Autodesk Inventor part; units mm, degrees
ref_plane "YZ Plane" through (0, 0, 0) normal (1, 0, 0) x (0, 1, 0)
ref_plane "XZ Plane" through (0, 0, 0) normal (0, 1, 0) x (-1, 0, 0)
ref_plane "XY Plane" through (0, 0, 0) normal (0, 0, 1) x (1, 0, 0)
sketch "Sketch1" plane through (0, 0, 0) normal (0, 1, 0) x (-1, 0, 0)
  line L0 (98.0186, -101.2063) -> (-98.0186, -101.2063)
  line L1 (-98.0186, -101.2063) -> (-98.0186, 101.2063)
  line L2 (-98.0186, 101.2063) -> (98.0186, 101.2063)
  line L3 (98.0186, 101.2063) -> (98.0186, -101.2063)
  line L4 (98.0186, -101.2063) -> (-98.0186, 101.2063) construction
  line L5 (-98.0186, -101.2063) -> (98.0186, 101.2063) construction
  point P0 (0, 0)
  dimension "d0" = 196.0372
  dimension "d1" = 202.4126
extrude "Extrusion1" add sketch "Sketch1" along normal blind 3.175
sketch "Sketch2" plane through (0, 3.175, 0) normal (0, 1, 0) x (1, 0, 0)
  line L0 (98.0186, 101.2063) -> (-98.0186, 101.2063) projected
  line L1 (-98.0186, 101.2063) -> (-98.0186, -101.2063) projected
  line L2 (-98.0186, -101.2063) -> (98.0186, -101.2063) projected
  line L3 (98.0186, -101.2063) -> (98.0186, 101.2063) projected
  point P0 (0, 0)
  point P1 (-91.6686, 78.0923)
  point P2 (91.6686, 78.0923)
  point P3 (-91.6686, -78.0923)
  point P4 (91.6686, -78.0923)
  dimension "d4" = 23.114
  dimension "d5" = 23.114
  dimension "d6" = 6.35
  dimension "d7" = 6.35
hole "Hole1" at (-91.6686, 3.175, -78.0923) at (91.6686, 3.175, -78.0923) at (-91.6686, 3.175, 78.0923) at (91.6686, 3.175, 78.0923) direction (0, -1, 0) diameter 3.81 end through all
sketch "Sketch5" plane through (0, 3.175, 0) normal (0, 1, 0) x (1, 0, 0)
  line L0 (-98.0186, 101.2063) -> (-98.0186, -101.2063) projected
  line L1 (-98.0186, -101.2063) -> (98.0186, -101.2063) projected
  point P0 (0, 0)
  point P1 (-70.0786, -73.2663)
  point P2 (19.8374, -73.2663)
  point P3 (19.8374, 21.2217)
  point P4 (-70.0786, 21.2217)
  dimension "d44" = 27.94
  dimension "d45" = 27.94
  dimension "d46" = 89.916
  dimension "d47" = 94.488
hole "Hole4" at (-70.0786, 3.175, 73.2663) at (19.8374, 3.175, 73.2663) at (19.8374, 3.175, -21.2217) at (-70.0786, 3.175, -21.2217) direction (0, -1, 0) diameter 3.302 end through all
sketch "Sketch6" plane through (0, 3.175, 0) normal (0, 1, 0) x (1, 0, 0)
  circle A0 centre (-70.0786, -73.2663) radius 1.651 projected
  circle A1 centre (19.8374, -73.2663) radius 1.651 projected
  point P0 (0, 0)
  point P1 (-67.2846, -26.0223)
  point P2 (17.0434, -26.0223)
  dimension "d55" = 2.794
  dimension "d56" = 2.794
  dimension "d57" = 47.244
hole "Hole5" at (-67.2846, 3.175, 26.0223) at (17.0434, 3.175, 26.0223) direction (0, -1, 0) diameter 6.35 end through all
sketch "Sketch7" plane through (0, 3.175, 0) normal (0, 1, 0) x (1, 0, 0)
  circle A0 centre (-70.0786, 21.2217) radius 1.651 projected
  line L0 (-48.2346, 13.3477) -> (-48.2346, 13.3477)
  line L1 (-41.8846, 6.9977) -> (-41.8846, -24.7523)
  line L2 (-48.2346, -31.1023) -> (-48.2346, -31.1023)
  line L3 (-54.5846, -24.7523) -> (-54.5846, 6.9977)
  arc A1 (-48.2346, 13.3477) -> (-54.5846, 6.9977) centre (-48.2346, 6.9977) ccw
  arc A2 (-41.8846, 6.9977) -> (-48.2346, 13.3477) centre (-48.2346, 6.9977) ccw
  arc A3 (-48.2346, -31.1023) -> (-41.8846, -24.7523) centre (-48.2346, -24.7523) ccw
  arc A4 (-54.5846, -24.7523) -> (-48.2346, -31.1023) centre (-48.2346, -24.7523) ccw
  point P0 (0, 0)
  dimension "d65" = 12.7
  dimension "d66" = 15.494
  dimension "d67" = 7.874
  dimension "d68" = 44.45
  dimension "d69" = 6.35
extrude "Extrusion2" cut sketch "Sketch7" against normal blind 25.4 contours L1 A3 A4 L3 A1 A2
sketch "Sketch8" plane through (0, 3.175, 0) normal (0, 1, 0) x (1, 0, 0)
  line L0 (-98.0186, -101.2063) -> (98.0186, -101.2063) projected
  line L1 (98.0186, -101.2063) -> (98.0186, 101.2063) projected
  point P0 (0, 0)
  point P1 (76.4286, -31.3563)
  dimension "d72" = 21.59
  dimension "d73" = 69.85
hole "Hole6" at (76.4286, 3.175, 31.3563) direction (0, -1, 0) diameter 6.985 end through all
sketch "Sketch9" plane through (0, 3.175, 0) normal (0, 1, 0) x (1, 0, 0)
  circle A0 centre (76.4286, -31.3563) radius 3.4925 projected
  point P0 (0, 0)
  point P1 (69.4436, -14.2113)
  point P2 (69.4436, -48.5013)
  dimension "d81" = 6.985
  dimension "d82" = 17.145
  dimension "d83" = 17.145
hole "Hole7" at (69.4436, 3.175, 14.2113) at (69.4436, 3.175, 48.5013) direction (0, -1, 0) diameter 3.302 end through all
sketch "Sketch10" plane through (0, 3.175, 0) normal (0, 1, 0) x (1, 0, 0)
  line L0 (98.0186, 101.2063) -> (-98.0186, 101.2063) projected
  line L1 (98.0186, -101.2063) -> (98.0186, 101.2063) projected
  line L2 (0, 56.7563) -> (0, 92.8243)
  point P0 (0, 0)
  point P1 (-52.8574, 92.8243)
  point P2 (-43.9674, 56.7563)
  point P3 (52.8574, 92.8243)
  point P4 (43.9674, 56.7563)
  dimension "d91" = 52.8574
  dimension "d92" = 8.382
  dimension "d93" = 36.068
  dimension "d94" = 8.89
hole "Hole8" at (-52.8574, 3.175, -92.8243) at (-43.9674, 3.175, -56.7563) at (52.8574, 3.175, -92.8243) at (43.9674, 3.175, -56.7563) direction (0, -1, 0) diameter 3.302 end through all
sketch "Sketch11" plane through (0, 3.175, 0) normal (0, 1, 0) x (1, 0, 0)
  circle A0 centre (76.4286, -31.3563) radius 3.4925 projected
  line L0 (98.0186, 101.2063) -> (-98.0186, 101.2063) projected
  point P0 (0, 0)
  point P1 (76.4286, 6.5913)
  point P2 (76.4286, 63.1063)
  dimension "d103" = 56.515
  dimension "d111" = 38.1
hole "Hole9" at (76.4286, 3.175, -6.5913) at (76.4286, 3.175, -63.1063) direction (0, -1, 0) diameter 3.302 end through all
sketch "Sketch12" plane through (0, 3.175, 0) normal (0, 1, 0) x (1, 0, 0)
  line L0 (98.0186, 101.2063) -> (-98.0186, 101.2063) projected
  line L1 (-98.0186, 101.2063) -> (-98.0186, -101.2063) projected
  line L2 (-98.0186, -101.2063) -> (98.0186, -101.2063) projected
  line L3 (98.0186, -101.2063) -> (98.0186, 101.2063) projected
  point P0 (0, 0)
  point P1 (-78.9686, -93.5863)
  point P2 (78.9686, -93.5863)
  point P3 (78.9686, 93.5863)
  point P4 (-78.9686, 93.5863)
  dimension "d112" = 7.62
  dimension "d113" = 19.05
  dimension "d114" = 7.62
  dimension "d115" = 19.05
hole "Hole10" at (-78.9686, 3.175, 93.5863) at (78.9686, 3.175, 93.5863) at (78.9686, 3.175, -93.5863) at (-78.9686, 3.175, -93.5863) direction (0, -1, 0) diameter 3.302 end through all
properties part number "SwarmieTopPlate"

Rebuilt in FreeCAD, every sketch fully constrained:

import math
import FreeCAD as App
import Part
import Sketcher
from FreeCAD import Vector
Q = App.Units.Quantity


def add_polygon(sketch, points):
    """Adds a closed chain of lines whose ends are joined by coincident constraints."""
    first, n = sketch.GeometryCount, len(points)
    for a, b in zip(points, points[1:] + points[:1]):
        sketch.addGeometry(Part.LineSegment(App.Vector(*a, 0), App.Vector(*b, 0)), False)
    for i in range(n):
        sketch.addConstraint(Sketcher.Constraint("Coincident", first + i, 2, first + (i + 1) % n, 1))

doc = App.newDocument("Part")
body = doc.addObject("PartDesign::Body", "Body")

# Sketch on XZ plane
sketch1 = body.newObject("Sketcher::SketchObject", "Sketch")
sketch1.AttachmentSupport = (doc.getObject("XZ_Plane"), [""])
sketch1.MapMode = "FlatFace"
add_polygon(sketch1, [(98.0186, -101.2063), (-98.0186, -101.2063), (-98.0186, 101.2063), (98.0186, 101.2063)])  # lines 0-3
sketch1.addConstraint([
    Sketcher.Constraint("Horizontal", 0),
    Sketcher.Constraint("Vertical", 1),
    Sketcher.Constraint("Horizontal", 2),
    Sketcher.Constraint("Vertical", 3),
    Sketcher.Constraint("Symmetric", 0, 2, 2, 2, -1, 1),
    Sketcher.Constraint("DistanceX", 0, 2, 0, 1, Q("7.718 in")),
    Sketcher.Constraint("DistanceY", 1, 1, 1, 2, Q("7.969 in")),
])
pad1 = body.newObject("PartDesign::Pad", "Pad")
pad1.Profile = sketch1
pad1.Length = Q("0.125 in")
pad1.Reversed = True

# Sketch on XZ plane
sketch2 = body.newObject("Sketcher::SketchObject", "Sketch001")
sketch2.AttachmentSupport = (doc.getObject("XZ_Plane"), [""])
sketch2.MapMode = "FlatFace"
sketch2.AttachmentOffset = App.Placement(Vector(0, 0, -0.125 * 25.4), App.Rotation())
sketch2.addGeometry([
    Part.Circle(Vector(-91.6686, -78.0923, 0), Vector(0, 0, 1), 1.905),
    Part.Circle(Vector(91.6686, -78.0923, 0), Vector(0, 0, 1), 1.905),
    Part.Circle(Vector(-91.6686, 78.0923, 0), Vector(0, 0, 1), 1.905),
    Part.Circle(Vector(91.6686, 78.0923, 0), Vector(0, 0, 1), 1.905),
], False)
sketch2.addConstraint([
    Sketcher.Constraint("Equal", 0, 1),
    Sketcher.Constraint("Equal", 1, 2),
    Sketcher.Constraint("Equal", 2, 3),
    Sketcher.Constraint("Symmetric", 1, 3, 2, 3, -1, 1),
    Sketcher.Constraint("Symmetric", 0, 3, 3, 3, -1, 1),
    Sketcher.Constraint("Symmetric", 0, 3, 1, 3, -2),
    Sketcher.Constraint("Diameter", 0, Q("0.15 in")),
    Sketcher.Constraint("DistanceX", 0, 3, -1, 1, Q("3.609 in")),
    Sketcher.Constraint("DistanceY", 0, 3, 2, 3, Q("6.149 in")),
])
doc.recompute()
hole = body.newObject("PartDesign::Hole", "Hole")
hole.Profile = sketch2
hole.ThreadType = "None"
hole.Diameter = Q("0.15 in")
hole.DepthType = "ThroughAll"
hole.Reversed = True

# Sketch on XZ plane
sketch3 = body.newObject("Sketcher::SketchObject", "Sketch002")
sketch3.AttachmentSupport = (doc.getObject("XZ_Plane"), [""])
sketch3.MapMode = "FlatFace"
sketch3.AttachmentOffset = App.Placement(Vector(0, 0, -0.125 * 25.4), App.Rotation())
sketch3.addGeometry([
    Part.Circle(Vector(-70.0786, 73.2663, 0), Vector(0, 0, 1), 1.651),
    Part.Circle(Vector(19.8374, 73.2663, 0), Vector(0, 0, 1), 1.651),
    Part.Circle(Vector(19.8374, -21.2217, 0), Vector(0, 0, 1), 1.651),
    Part.Circle(Vector(-70.0786, -21.2217, 0), Vector(0, 0, 1), 1.651),
], False)
sketch3.addConstraint([
    Sketcher.Constraint("Equal", 0, 1),
    Sketcher.Constraint("Equal", 1, 2),
    Sketcher.Constraint("Equal", 2, 3),
    Sketcher.Constraint("Horizontal", 0, 3, 1, 3),
    Sketcher.Constraint("Horizontal", 2, 3, 3, 3),
    Sketcher.Constraint("Vertical", 1, 3, 2, 3),
    Sketcher.Constraint("Vertical", 0, 3, 3, 3),
    Sketcher.Constraint("Diameter", 0, Q("0.13 in")),
    Sketcher.Constraint("DistanceX", 0, 3, 1, 3, Q("3.54 in")),
    Sketcher.Constraint("DistanceY", 2, 3, 1, 3, Q("3.72 in")),
    Sketcher.Constraint("DistanceX", 0, 3, -1, 1, Q("2.759 in")),
    Sketcher.Constraint("DistanceY", -1, 1, 0, 3, Q("2.8845 in")),
])
doc.recompute()
hole2 = body.newObject("PartDesign::Hole", "Hole001")
hole2.Profile = sketch3
hole2.ThreadType = "None"
hole2.Diameter = Q("0.13 in")
hole2.DepthType = "ThroughAll"
hole2.Reversed = True

# Sketch on XZ plane
sketch4 = body.newObject("Sketcher::SketchObject", "Sketch003")
sketch4.AttachmentSupport = (doc.getObject("XZ_Plane"), [""])
sketch4.MapMode = "FlatFace"
sketch4.AttachmentOffset = App.Placement(Vector(0, 0, -0.125 * 25.4), App.Rotation())
sketch4.addGeometry([
    Part.Circle(Vector(-67.2846, 26.0223, 0), Vector(0, 0, 1), 3.175),
    Part.Circle(Vector(17.0434, 26.0223, 0), Vector(0, 0, 1), 3.175),
], False)
sketch4.addConstraint([
    Sketcher.Constraint("Equal", 0, 1),
    Sketcher.Constraint("Horizontal", 0, 3, 1, 3),
    Sketcher.Constraint("Diameter", 0, Q("0.25 in")),
    Sketcher.Constraint("DistanceX", 0, 3, 1, 3, Q("3.32 in")),
    Sketcher.Constraint("DistanceX", 0, 3, -1, 1, Q("2.649 in")),
    Sketcher.Constraint("DistanceY", -1, 1, 0, 3, Q("1.0245 in")),
])
doc.recompute()
hole3 = body.newObject("PartDesign::Hole", "Hole002")
hole3.Profile = sketch4
hole3.ThreadType = "None"
hole3.Diameter = Q("0.25 in")
hole3.DepthType = "ThroughAll"
hole3.Reversed = True

# Sketch on XZ plane
sketch5 = body.newObject("Sketcher::SketchObject", "Sketch004")
sketch5.AttachmentSupport = (doc.getObject("XZ_Plane"), [""])
sketch5.MapMode = "FlatFace"
sketch5.AttachmentOffset = App.Placement(Vector(0, 0, -0.125 * 25.4), App.Rotation())
sketch5.addGeometry([
    Part.LineSegment(Vector(-41.8846, 24.7523, 0), Vector(-41.8846, -6.9977, 0)),
    Part.ArcOfCircle(Part.Circle(Vector(-48.2346, -6.9977, 0), Vector(0, 0, 1), 6.35), math.radians(180), math.radians(360)),
    Part.LineSegment(Vector(-54.5846, -6.9977, 0), Vector(-54.5846, 24.7523, 0)),
    Part.ArcOfCircle(Part.Circle(Vector(-48.2346, 24.7523, 0), Vector(0, 0, 1), 6.35), math.radians(0), math.radians(180)),
], False)
sketch5.addConstraint([
    Sketcher.Constraint("Tangent", 0, 2, 1, 2),
    Sketcher.Constraint("Tangent", 1, 1, 2, 1),
    Sketcher.Constraint("Tangent", 2, 2, 3, 2),
    Sketcher.Constraint("Tangent", 3, 1, 0, 1),
    Sketcher.Constraint("Vertical", 0),
    Sketcher.Constraint("Vertical", 2),
    Sketcher.Constraint("Radius", 1, Q("0.25 in")),
    Sketcher.Constraint("DistanceY", 0, 2, 0, 1, Q("1.25 in")),
    Sketcher.Constraint("DistanceX", 1, 3, -1, 1, Q("1.899 in")),
    Sketcher.Constraint("DistanceY", 1, 3, -1, 1, Q("0.2755 in")),
])
pocket1 = body.newObject("PartDesign::Pocket", "Pocket")
pocket1.Profile = sketch5
pocket1.Length = Q("1 in")
pocket1.Reversed = True

# Sketch on XZ plane
sketch6 = body.newObject("Sketcher::SketchObject", "Sketch005")
sketch6.AttachmentSupport = (doc.getObject("XZ_Plane"), [""])
sketch6.MapMode = "FlatFace"
sketch6.AttachmentOffset = App.Placement(Vector(0, 0, -0.125 * 25.4), App.Rotation())
sketch6.addGeometry(Part.Circle(Vector(76.4286, 31.3563, 0), Vector(0, 0, 1), 3.4925), False)
sketch6.addConstraint([
    Sketcher.Constraint("Diameter", 0, Q("0.275 in")),
    Sketcher.Constraint("DistanceX", -1, 1, 0, 3, Q("3.009 in")),
    Sketcher.Constraint("DistanceY", -1, 1, 0, 3, Q("1.2345 in")),
])
doc.recompute()
hole4 = body.newObject("PartDesign::Hole", "Hole003")
hole4.Profile = sketch6
hole4.ThreadType = "None"
hole4.Diameter = Q("0.275 in")
hole4.DepthType = "ThroughAll"
hole4.Reversed = True

# Sketch on XZ plane
sketch7 = body.newObject("Sketcher::SketchObject", "Sketch006")
sketch7.AttachmentSupport = (doc.getObject("XZ_Plane"), [""])
sketch7.MapMode = "FlatFace"
sketch7.AttachmentOffset = App.Placement(Vector(0, 0, -0.125 * 25.4), App.Rotation())
sketch7.addGeometry([
    Part.Circle(Vector(69.4436, 14.2113, 0), Vector(0, 0, 1), 1.651),
    Part.Circle(Vector(69.4436, 48.5013, 0), Vector(0, 0, 1), 1.651),
], False)
sketch7.addConstraint([
    Sketcher.Constraint("Equal", 0, 1),
    Sketcher.Constraint("Vertical", 0, 3, 1, 3),
    Sketcher.Constraint("Diameter", 0, Q("0.13 in")),
    Sketcher.Constraint("DistanceY", 0, 3, 1, 3, Q("1.35 in")),
    Sketcher.Constraint("DistanceX", -1, 1, 0, 3, Q("2.734 in")),
    Sketcher.Constraint("DistanceY", -1, 1, 0, 3, Q("0.5595 in")),
])
doc.recompute()
hole5 = body.newObject("PartDesign::Hole", "Hole004")
hole5.Profile = sketch7
hole5.ThreadType = "None"
hole5.Diameter = Q("0.13 in")
hole5.DepthType = "ThroughAll"
hole5.Reversed = True

# Sketch on XZ plane
sketch8 = body.newObject("Sketcher::SketchObject", "Sketch007")
sketch8.AttachmentSupport = (doc.getObject("XZ_Plane"), [""])
sketch8.MapMode = "FlatFace"
sketch8.AttachmentOffset = App.Placement(Vector(0, 0, -0.125 * 25.4), App.Rotation())
sketch8.addGeometry([
    Part.Circle(Vector(-52.8574, -92.8243, 0), Vector(0, 0, 1), 1.651),
    Part.Circle(Vector(-43.9674, -56.7563, 0), Vector(0, 0, 1), 1.651),
    Part.Circle(Vector(52.8574, -92.8243, 0), Vector(0, 0, 1), 1.651),
    Part.Circle(Vector(43.9674, -56.7563, 0), Vector(0, 0, 1), 1.651),
], False)
sketch8.addConstraint([
    Sketcher.Constraint("Equal", 0, 1),
    Sketcher.Constraint("Equal", 1, 2),
    Sketcher.Constraint("Equal", 2, 3),
    Sketcher.Constraint("Symmetric", 0, 3, 2, 3, -2),
    Sketcher.Constraint("Symmetric", 1, 3, 3, 3, -2),
    Sketcher.Constraint("Diameter", 0, Q("0.13 in")),
    Sketcher.Constraint("DistanceX", 0, 3, 1, 3, Q("0.35 in")),
    Sketcher.Constraint("DistanceY", 0, 3, 1, 3, Q("1.42 in")),
    Sketcher.Constraint("DistanceX", 0, 3, -1, 1, Q("2.081 in")),
    Sketcher.Constraint("DistanceY", 0, 3, -1, 1, Q("3.6545 in")),
])
doc.recompute()
hole6 = body.newObject("PartDesign::Hole", "Hole005")
hole6.Profile = sketch8
hole6.ThreadType = "None"
hole6.Diameter = Q("0.13 in")
hole6.DepthType = "ThroughAll"
hole6.Reversed = True

# Sketch on XZ plane
sketch9 = body.newObject("Sketcher::SketchObject", "Sketch008")
sketch9.AttachmentSupport = (doc.getObject("XZ_Plane"), [""])
sketch9.MapMode = "FlatFace"
sketch9.AttachmentOffset = App.Placement(Vector(0, 0, -0.125 * 25.4), App.Rotation())
sketch9.addGeometry([
    Part.Circle(Vector(76.4286, -6.5913, 0), Vector(0, 0, 1), 1.651),
    Part.Circle(Vector(76.4286, -63.1063, 0), Vector(0, 0, 1), 1.651),
], False)
sketch9.addConstraint([
    Sketcher.Constraint("Equal", 0, 1),
    Sketcher.Constraint("Vertical", 0, 3, 1, 3),
    Sketcher.Constraint("Diameter", 0, Q("0.13 in")),
    Sketcher.Constraint("DistanceX", -1, 1, 0, 3, Q("3.009 in")),
    Sketcher.Constraint("DistanceY", 1, 3, 0, 3, Q("2.225 in")),
    Sketcher.Constraint("DistanceY", 0, 3, -1, 1, Q("0.2595 in")),
])
doc.recompute()
hole7 = body.newObject("PartDesign::Hole", "Hole006")
hole7.Profile = sketch9
hole7.ThreadType = "None"
hole7.Diameter = Q("0.13 in")
hole7.DepthType = "ThroughAll"
hole7.Reversed = True

# Sketch on XZ plane
sketch10 = body.newObject("Sketcher::SketchObject", "Sketch009")
sketch10.AttachmentSupport = (doc.getObject("XZ_Plane"), [""])
sketch10.MapMode = "FlatFace"
sketch10.AttachmentOffset = App.Placement(Vector(0, 0, -0.125 * 25.4), App.Rotation())
sketch10.addGeometry([
    Part.Circle(Vector(-78.9686, 93.5863, 0), Vector(0, 0, 1), 1.651),
    Part.Circle(Vector(78.9686, 93.5863, 0), Vector(0, 0, 1), 1.651),
    Part.Circle(Vector(78.9686, -93.5863, 0), Vector(0, 0, 1), 1.651),
    Part.Circle(Vector(-78.9686, -93.5863, 0), Vector(0, 0, 1), 1.651),
], False)
sketch10.addConstraint([
    Sketcher.Constraint("Equal", 0, 1),
    Sketcher.Constraint("Equal", 1, 2),
    Sketcher.Constraint("Equal", 2, 3),
    Sketcher.Constraint("Symmetric", 0, 3, 2, 3, -1, 1),
    Sketcher.Constraint("Symmetric", 1, 3, 3, 3, -1, 1),
    Sketcher.Constraint("Symmetric", 0, 3, 1, 3, -2),
    Sketcher.Constraint("Diameter", 0, Q("0.13 in")),
    Sketcher.Constraint("DistanceX", 0, 3, -1, 1, Q("3.109 in")),
    Sketcher.Constraint("DistanceY", 2, 3, 1, 3, Q("7.369 in")),
])
doc.recompute()
hole8 = body.newObject("PartDesign::Hole", "Hole007")
hole8.Profile = sketch10
hole8.ThreadType = "None"
hole8.Diameter = Q("0.13 in")
hole8.DepthType = "ThroughAll"
hole8.Reversed = True

doc.recompute()
